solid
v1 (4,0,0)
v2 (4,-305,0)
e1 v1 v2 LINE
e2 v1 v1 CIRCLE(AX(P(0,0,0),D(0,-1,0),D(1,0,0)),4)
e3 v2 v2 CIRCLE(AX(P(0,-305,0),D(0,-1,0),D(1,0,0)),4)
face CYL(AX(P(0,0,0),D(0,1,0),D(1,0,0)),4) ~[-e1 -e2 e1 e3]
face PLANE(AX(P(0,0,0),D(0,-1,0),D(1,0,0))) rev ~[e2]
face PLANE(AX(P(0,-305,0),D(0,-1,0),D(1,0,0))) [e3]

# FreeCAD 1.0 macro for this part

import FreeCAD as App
import Part
import Sketcher

V = App.Vector

doc = App.newDocument("Part")
body = doc.addObject("PartDesign::Body", "Body")

# Sketch on XZ plane
sketch1 = body.newObject("Sketcher::SketchObject", "Sketch")
sketch1.AttachmentSupport = (doc.getObject("XZ_Plane"), [""])
sketch1.MapMode = "FlatFace"
sketch1.addGeometry(Part.Circle(V(0, 0, 0), V(0, 0, 1), 4), False)
sketch1.addConstraint([
    Sketcher.Constraint("Coincident", 0, 3, -1, 1),
    Sketcher.Constraint("Diameter", 0, 8.0),
])
pad1 = body.newObject("PartDesign::Pad", "Pad")
pad1.Profile = sketch1
pad1.Length = 305

doc.recompute()
